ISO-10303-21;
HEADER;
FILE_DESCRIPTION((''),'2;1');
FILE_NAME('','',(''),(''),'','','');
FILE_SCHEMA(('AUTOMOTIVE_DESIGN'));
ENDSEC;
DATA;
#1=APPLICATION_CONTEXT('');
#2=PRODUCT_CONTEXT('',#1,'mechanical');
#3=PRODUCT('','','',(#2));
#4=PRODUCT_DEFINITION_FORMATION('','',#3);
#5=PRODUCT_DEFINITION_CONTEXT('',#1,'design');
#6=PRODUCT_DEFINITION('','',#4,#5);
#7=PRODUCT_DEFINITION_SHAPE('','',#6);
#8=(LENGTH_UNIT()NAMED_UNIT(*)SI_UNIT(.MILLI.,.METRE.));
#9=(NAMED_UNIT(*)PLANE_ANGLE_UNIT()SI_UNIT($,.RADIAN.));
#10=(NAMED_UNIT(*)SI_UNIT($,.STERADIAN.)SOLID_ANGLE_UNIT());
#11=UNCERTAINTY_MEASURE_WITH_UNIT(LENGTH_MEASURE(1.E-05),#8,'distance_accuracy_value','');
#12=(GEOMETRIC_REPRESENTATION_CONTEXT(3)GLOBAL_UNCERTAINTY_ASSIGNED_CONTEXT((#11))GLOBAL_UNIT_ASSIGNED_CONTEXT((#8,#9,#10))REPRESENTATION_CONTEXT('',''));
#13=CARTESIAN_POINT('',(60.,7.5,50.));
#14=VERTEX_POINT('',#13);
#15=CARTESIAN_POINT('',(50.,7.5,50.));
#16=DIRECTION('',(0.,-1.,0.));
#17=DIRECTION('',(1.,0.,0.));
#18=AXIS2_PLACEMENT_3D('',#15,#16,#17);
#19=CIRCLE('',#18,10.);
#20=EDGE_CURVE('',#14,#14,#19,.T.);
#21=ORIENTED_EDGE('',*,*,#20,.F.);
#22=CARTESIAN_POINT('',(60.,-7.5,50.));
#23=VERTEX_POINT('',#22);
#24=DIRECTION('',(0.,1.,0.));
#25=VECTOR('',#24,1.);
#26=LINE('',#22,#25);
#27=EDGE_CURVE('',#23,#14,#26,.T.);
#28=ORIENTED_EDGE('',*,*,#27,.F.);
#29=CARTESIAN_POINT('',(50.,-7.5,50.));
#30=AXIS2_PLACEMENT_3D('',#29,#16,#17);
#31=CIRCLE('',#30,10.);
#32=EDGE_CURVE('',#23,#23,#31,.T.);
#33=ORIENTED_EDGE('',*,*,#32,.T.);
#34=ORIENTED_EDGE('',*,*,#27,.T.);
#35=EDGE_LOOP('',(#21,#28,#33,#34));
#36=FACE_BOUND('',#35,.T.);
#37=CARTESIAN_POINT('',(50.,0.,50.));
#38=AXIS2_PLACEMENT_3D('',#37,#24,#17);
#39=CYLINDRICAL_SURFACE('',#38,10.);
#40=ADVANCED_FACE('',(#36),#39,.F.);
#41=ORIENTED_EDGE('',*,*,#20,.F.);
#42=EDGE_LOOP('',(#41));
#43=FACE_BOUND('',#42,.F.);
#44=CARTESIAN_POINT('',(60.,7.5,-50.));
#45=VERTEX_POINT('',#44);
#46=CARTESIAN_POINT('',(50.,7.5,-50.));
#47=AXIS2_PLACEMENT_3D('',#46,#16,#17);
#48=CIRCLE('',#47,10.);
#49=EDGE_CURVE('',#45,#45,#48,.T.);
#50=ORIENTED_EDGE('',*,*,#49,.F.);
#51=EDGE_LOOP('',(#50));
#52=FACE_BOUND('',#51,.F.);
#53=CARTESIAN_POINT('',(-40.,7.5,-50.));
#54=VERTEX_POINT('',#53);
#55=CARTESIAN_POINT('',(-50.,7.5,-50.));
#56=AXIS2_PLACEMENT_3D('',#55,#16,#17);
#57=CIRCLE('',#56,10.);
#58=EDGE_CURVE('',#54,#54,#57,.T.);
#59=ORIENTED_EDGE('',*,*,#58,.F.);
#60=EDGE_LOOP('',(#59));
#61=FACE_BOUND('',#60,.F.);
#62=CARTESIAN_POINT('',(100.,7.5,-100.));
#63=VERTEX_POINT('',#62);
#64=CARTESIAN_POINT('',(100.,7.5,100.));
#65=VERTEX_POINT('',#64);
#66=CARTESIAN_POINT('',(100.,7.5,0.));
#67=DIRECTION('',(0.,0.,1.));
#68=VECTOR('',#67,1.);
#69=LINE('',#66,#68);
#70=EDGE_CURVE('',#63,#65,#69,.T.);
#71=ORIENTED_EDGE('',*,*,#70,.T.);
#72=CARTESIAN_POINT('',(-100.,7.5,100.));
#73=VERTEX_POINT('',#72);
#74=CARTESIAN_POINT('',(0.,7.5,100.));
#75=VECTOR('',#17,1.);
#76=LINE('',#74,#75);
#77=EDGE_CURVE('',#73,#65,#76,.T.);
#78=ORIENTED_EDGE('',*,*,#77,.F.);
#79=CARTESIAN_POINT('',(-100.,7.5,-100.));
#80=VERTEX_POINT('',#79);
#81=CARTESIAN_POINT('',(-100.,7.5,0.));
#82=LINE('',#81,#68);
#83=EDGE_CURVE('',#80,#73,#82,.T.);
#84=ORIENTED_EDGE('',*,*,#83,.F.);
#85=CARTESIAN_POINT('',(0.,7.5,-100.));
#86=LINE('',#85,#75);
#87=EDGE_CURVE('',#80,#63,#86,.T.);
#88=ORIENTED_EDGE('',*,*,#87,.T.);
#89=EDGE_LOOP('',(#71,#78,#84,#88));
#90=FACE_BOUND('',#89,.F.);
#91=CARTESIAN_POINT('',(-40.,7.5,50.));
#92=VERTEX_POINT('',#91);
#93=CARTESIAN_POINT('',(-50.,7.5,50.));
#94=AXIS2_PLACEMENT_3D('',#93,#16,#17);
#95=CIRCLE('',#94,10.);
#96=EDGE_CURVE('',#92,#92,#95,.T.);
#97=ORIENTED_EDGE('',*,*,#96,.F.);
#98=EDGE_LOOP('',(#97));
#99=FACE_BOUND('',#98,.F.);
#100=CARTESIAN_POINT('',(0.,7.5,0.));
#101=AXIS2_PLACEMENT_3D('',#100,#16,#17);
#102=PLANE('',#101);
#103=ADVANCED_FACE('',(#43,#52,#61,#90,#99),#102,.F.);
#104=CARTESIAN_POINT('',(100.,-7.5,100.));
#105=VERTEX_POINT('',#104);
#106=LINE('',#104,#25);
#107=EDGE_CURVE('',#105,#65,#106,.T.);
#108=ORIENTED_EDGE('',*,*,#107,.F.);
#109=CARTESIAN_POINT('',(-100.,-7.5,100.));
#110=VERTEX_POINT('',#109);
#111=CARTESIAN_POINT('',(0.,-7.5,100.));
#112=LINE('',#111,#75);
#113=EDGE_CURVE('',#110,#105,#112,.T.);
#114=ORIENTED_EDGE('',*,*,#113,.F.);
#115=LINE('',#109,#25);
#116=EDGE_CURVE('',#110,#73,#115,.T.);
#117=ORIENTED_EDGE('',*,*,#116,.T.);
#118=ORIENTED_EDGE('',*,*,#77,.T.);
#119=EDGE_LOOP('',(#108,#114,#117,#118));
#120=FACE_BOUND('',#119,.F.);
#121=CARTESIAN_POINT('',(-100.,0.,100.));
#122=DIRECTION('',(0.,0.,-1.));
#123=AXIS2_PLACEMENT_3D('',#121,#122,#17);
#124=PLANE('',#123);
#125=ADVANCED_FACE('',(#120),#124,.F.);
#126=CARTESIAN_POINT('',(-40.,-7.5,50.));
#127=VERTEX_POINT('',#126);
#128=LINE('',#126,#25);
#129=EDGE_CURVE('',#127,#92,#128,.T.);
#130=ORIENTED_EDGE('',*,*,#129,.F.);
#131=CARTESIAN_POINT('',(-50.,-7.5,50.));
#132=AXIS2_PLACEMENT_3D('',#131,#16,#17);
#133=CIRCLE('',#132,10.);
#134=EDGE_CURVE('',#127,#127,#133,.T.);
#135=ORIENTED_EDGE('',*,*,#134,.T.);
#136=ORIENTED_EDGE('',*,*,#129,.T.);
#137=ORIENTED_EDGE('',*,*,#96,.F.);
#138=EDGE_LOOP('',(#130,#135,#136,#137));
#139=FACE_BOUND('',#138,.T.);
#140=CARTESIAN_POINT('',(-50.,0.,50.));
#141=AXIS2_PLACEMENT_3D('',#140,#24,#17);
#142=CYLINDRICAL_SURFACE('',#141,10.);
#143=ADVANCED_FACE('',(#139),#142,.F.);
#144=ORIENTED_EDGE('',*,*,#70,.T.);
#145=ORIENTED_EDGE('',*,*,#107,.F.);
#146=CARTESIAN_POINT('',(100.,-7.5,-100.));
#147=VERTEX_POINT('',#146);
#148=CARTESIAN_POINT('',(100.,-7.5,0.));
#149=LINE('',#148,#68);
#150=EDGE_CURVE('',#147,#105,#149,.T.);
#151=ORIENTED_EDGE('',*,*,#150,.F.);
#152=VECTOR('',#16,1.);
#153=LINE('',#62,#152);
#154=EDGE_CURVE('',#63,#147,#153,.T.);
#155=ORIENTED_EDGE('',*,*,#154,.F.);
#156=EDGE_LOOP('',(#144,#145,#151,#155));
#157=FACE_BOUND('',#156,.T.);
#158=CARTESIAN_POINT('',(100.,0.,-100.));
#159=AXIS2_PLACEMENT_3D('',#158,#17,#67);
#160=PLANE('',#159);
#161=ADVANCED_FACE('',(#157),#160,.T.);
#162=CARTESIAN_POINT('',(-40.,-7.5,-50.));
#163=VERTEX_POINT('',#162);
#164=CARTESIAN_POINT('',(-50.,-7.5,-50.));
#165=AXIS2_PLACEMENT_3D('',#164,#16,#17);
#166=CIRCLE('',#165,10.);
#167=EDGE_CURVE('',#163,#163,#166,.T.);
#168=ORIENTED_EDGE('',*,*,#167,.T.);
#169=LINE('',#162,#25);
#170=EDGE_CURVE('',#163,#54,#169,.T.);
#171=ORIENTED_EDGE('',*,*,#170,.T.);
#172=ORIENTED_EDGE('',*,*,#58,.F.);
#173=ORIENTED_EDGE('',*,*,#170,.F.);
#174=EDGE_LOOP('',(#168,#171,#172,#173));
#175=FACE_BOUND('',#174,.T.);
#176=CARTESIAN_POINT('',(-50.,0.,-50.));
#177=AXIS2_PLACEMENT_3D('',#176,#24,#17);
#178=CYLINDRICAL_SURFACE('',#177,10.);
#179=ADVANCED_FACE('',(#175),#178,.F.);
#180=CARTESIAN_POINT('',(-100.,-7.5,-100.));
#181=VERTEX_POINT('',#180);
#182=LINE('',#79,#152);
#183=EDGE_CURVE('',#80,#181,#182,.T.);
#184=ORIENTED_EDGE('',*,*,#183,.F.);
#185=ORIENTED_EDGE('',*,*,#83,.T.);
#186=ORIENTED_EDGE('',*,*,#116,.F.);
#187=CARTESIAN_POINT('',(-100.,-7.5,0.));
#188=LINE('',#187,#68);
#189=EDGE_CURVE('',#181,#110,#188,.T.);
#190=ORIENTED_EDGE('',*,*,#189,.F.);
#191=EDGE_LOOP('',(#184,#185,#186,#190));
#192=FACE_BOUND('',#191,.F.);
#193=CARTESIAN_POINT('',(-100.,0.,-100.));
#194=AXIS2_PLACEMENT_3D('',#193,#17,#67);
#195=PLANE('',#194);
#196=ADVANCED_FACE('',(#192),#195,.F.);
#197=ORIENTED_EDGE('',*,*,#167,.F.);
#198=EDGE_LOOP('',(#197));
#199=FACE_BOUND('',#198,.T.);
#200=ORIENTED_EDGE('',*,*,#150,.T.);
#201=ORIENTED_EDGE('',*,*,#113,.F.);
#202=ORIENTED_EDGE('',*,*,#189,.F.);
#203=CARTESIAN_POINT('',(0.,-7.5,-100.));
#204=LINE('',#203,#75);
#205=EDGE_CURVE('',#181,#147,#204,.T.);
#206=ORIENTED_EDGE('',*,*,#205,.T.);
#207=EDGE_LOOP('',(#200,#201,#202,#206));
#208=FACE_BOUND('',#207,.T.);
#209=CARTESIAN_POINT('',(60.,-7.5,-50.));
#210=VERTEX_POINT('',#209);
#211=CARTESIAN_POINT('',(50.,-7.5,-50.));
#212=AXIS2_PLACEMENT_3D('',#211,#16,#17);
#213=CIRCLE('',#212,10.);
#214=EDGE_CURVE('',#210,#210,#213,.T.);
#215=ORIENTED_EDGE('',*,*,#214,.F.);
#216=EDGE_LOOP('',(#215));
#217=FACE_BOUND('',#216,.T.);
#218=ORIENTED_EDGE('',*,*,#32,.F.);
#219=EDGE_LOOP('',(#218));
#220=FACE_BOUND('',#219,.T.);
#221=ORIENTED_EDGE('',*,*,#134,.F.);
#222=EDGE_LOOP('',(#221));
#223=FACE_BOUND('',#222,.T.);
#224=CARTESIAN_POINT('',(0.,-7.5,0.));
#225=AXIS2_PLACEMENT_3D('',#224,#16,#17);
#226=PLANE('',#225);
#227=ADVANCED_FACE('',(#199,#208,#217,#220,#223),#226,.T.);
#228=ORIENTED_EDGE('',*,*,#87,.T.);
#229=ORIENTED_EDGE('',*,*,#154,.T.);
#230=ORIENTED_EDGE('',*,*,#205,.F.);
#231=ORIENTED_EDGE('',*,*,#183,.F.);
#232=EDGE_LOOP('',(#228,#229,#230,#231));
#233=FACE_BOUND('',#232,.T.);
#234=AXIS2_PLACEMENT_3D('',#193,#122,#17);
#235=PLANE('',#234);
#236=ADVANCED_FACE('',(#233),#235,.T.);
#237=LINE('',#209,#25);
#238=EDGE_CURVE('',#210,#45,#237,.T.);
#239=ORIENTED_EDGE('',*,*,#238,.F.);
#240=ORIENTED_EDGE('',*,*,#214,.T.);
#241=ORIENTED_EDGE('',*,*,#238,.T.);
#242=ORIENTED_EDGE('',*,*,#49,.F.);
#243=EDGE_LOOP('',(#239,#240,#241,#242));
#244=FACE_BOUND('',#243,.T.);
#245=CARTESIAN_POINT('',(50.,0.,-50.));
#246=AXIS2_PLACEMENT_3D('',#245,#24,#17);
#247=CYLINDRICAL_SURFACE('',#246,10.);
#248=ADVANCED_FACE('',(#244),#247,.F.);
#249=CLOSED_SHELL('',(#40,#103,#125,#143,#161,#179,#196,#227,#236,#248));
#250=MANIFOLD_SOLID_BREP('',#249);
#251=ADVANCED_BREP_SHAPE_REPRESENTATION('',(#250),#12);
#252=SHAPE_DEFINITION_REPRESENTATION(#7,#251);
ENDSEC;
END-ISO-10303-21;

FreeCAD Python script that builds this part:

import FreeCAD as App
import Part
import Sketcher
from FreeCAD import Vector

doc = App.newDocument("Part")
params = doc.addObject("Spreadsheet::Sheet", "Params")
for row, (alias, value) in enumerate([
    ("sketch1_diameter", "20 mm"),
    ("sketch1_width", "200 mm"),
    ("pad1_length", "15 mm"),
], start=1):
    params.set(f"A{row}", alias)
    params.set(f"B{row}", "=" + value)
    params.setAlias(f"B{row}", alias)

body = doc.addObject("PartDesign::Body", "Body")

# Sketch on XZ plane
sketch1 = body.newObject("Sketcher::SketchObject", "Sketch")
sketch1.AttachmentSupport = (doc.getObject("XZ_Plane"), [""])
sketch1.MapMode = "FlatFace"
sketch1.addGeometry(Part.LineSegment(Vector(-100, 100, 0), Vector(-100, -100, 0)), False)
sketch1.addGeometry(Part.LineSegment(Vector(-100, -100, 0), Vector(100, -100, 0)), False)
sketch1.addGeometry(Part.LineSegment(Vector(100, -100, 0), Vector(100, 100, 0)), False)
sketch1.addGeometry(Part.LineSegment(Vector(100, 100, 0), Vector(-100, 100, 0)), False)
sketch1.addGeometry(Part.Circle(Vector(-50, -50, 0), Vector(0, 0, 1), 10), False)
sketch1.addGeometry(Part.Circle(Vector(50, -50, 0), Vector(0, 0, 1), 10), False)
sketch1.addGeometry(Part.Circle(Vector(-50, 50, 0), Vector(0, 0, 1), 10), False)
sketch1.addGeometry(Part.Circle(Vector(50, 50, 0), Vector(0, 0, 1), 10), False)
sketch1.addConstraint(Sketcher.Constraint("Coincident", 0, 2, 1, 1))
sketch1.addConstraint(Sketcher.Constraint("Coincident", 1, 2, 2, 1))
sketch1.addConstraint(Sketcher.Constraint("Coincident", 2, 2, 3, 1))
sketch1.addConstraint(Sketcher.Constraint("Coincident", 3, 2, 0, 1))
sketch1.addConstraint(Sketcher.Constraint("Vertical", 0))
sketch1.addConstraint(Sketcher.Constraint("Horizontal", 1))
sketch1.addConstraint(Sketcher.Constraint("Vertical", 2))
sketch1.addConstraint(Sketcher.Constraint("Horizontal", 3))
sketch1.addConstraint(Sketcher.Constraint("Equal", 4, 5))
sketch1.addConstraint(Sketcher.Constraint("Equal", 5, 6))
sketch1.addConstraint(Sketcher.Constraint("Equal", 6, 7))
sketch1.addConstraint(Sketcher.Constraint("Symmetric", 5, 3, 6, 3, -1, 1))
sketch1.addConstraint(Sketcher.Constraint("Symmetric", 4, 3, 7, 3, -1, 1))
sketch1.addConstraint(Sketcher.Constraint("Symmetric", 0, 2, 2, 2, -1, 1))
sketch1.addConstraint(Sketcher.Constraint("Symmetric", 4, 3, 5, 3, -2))
sketch1.addConstraint(Sketcher.Constraint("Equal", 3, 0))
sketch1.addConstraint(Sketcher.Constraint("Diameter", 4, 20.0))
sketch1.addConstraint(Sketcher.Constraint("DistanceX", 1, 1, 1, 2, 200.0))
sketch1.addConstraint(Sketcher.Constraint("DistanceX", 4, 3, -1, 1, 50.0))
sketch1.addConstraint(Sketcher.Constraint("DistanceY", 4, 3, -1, 1, 50.0))
sketch1.setExpression("Constraints[16]", "Params.sketch1_diameter")
sketch1.setExpression("Constraints[17]", "Params.sketch1_width")
pad1 = body.newObject("PartDesign::Pad", "Pad")
pad1.Profile = sketch1
pad1.setExpression("Length", "Params.pad1_length")
pad1.Midplane = True

doc.recompute()
